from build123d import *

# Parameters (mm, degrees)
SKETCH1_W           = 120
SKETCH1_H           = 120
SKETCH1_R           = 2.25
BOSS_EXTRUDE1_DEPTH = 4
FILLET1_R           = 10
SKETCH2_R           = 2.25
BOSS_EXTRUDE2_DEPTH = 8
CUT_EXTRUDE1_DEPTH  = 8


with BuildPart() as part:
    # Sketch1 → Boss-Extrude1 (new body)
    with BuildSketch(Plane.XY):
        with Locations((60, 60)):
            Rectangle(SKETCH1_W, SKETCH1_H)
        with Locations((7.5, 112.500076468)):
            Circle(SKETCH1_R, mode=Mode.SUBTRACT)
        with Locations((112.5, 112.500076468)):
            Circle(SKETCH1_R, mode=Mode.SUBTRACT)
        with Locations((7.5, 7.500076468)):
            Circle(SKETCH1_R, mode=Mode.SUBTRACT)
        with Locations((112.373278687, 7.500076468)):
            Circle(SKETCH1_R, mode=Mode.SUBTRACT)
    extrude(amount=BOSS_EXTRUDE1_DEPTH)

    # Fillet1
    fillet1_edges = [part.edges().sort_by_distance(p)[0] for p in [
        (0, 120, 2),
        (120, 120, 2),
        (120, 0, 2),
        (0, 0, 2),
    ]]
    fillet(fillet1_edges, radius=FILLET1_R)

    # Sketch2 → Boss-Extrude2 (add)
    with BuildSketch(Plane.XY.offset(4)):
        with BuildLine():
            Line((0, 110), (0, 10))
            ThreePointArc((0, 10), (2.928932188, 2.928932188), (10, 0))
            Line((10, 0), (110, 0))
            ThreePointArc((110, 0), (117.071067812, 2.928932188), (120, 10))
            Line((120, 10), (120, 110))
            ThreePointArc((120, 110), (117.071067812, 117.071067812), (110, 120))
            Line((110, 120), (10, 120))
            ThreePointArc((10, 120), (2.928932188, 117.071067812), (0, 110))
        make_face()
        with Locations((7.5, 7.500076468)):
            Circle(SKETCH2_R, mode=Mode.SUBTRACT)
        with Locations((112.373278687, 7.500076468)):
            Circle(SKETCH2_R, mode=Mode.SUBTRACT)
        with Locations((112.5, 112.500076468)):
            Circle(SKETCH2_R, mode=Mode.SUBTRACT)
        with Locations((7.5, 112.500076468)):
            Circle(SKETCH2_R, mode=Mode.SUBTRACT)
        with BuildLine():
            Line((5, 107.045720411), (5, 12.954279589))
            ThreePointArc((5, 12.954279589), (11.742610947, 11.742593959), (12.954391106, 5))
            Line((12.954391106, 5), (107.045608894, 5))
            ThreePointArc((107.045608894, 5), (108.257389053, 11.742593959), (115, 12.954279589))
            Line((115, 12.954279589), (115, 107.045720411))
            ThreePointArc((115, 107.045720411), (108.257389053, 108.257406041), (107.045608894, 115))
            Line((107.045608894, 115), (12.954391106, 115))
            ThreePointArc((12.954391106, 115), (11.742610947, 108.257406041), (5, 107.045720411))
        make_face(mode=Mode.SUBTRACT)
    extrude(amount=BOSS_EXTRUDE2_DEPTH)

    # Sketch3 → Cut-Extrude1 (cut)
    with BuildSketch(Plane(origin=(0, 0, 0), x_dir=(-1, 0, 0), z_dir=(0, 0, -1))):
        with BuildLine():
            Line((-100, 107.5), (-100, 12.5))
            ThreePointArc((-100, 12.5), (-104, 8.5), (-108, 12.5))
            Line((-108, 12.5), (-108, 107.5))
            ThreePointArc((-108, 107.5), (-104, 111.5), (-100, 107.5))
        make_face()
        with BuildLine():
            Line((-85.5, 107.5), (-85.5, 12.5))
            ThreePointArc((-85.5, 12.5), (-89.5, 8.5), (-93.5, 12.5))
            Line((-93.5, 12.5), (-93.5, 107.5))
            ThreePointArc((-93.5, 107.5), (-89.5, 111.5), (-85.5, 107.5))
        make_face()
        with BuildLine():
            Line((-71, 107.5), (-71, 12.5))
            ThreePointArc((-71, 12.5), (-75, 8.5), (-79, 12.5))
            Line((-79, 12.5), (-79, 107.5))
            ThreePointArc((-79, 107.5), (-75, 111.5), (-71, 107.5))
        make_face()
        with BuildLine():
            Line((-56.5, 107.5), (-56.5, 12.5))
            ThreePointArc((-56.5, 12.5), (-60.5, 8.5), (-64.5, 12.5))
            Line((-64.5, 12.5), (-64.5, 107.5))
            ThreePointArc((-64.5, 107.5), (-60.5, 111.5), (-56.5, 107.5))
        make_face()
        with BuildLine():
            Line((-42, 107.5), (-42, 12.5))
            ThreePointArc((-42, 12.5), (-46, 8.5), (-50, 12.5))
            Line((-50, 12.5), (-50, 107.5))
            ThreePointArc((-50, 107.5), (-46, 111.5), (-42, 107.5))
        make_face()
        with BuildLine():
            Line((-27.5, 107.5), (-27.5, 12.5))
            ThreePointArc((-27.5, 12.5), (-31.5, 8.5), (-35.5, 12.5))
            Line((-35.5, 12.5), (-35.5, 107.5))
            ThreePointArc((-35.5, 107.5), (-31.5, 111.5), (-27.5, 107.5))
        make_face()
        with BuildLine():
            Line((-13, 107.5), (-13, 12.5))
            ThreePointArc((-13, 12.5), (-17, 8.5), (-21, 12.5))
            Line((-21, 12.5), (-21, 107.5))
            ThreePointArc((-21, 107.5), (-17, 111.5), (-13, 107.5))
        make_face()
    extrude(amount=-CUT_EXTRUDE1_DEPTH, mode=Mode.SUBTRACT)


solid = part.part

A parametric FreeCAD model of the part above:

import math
import FreeCAD as App
import Part
import Sketcher

V = App.Vector
Q = App.Units.Quantity


def edges_at(feature, points):
    """Names of the edges that pass closest to the given points."""
    edges = feature.Shape.Edges
    near = lambda p: min(range(len(edges)), key=lambda i: edges[i].distToShape(Part.Vertex(*p))[0])
    return sorted({f"Edge{near(p) + 1}" for p in points})


def add_polygon(sketch, points):
    """Adds a closed chain of lines whose ends are joined by coincident constraints."""
    first, n = sketch.GeometryCount, len(points)
    for a, b in zip(points, points[1:] + points[:1]):
        sketch.addGeometry(Part.LineSegment(App.Vector(*a, 0), App.Vector(*b, 0)), False)
    for i in range(n):
        sketch.addConstraint(Sketcher.Constraint("Coincident", first + i, 2, first + (i + 1) % n, 1))

doc = App.newDocument("Part")
body = doc.addObject("PartDesign::Body", "Body")

# Sketch on XY plane
sketch1 = doc.addObject("Sketcher::SketchObject", "Sketch")
body.addObject(sketch1)
sketch1.AttachmentSupport = (doc.XY_Plane, [""])
sketch1.MapMode = "FlatFace"
add_polygon(sketch1, [(0, 120), (0, 0), (120, 0), (120, 120)])  # lines 0-3
sketch1.addGeometry(Part.Circle(V(7.5, 7.5, 0), V(0, 0, 1), 2.2), False)  # 4
sketch1.addGeometry(Part.Circle(V(112.4, 7.5, 0), V(0, 0, 1), 2.2), False)  # 5
sketch1.addGeometry(Part.Circle(V(7.5, 112.5, 0), V(0, 0, 1), 2.2), False)  # 6
sketch1.addGeometry(Part.Circle(V(112.5, 112.5, 0), V(0, 0, 1), 2.2), False)  # 7
sketch1.addConstraint(Sketcher.Constraint("Vertical", 0))
sketch1.addConstraint(Sketcher.Constraint("Horizontal", 1))
sketch1.addConstraint(Sketcher.Constraint("Vertical", 2))
sketch1.addConstraint(Sketcher.Constraint("Horizontal", 3))
sketch1.addConstraint(Sketcher.Constraint("Coincident", 0, 2, -1, 1))
sketch1.addConstraint(Sketcher.Constraint("Equal", 4, 5))
sketch1.addConstraint(Sketcher.Constraint("Equal", 5, 6))
sketch1.addConstraint(Sketcher.Constraint("Equal", 6, 7))
sketch1.addConstraint(Sketcher.Constraint("Horizontal", 4, 3, 5, 3))
sketch1.addConstraint(Sketcher.Constraint("Horizontal", 6, 3, 7, 3))
sketch1.addConstraint(Sketcher.Constraint("Vertical", 4, 3, 6, 3))
sketch1.addConstraint(Sketcher.Constraint("Equal", 3, 0))
sketch1.addConstraint(Sketcher.Constraint("Diameter", 4, Q("4.5 mm")))
sketch1.addConstraint(Sketcher.Constraint("DistanceX", 1, 1, 1, 2, Q("120 mm")))
sketch1.addConstraint(Sketcher.Constraint("DistanceY", 4, 3, 6, 3, Q("105 mm")))
sketch1.addConstraint(Sketcher.Constraint("DistanceX", 6, 3, 7, 3, Q("105 mm")))
sketch1.addConstraint(Sketcher.Constraint("DistanceX", -1, 1, 4, 3, Q("7.5 mm")))
sketch1.addConstraint(Sketcher.Constraint("DistanceX", -1, 1, 5, 3, Q("112.373279 mm")))
sketch1.addConstraint(Sketcher.Constraint("DistanceY", -1, 1, 4, 3, Q("7.500076 mm")))
pad1 = doc.addObject("PartDesign::Pad", "Pad")
body.addObject(pad1)
pad1.Profile = sketch1
pad1.Length = 4
doc.recompute()

fillet = doc.addObject("PartDesign::Fillet", "Fillet")
body.addObject(fillet)
fillet.Base = (pad1, edges_at(pad1, [
    (0, 120, 2),
    (120, 120, 2),
    (120, 0, 2),
    (0, 0, 2),
]))
fillet.Radius = 10

# Sketch on XY plane
sketch2 = doc.addObject("Sketcher::SketchObject", "Sketch001")
body.addObject(sketch2)
sketch2.AttachmentSupport = (doc.XY_Plane, [""])
sketch2.MapMode = "FlatFace"
sketch2.AttachmentOffset = App.Placement(V(0, 0, 4), App.Rotation())
sketch2.addGeometry(Part.LineSegment(V(0, 110, 0), V(0, 10, 0)), False)
sketch2.addGeometry(Part.ArcOfCircle(Part.Circle(V(10, 10, 0), V(0, 0, 1), 10), math.radians(180), math.radians(270)), False)
sketch2.addGeometry(Part.LineSegment(V(10, 0, 0), V(110, 0, 0)), False)
sketch2.addGeometry(Part.ArcOfCircle(Part.Circle(V(110, 10, 0), V(0, 0, 1), 10), math.radians(-90), math.radians(0)), False)
sketch2.addGeometry(Part.LineSegment(V(120, 10, 0), V(120, 110, 0)), False)
sketch2.addGeometry(Part.ArcOfCircle(Part.Circle(V(110, 110, 0), V(0, 0, 1), 10), math.radians(0), math.radians(90)), False)
sketch2.addGeometry(Part.LineSegment(V(110, 120, 0), V(10, 120, 0)), False)
sketch2.addGeometry(Part.ArcOfCircle(Part.Circle(V(10, 110, 0), V(0, 0, 1), 10), math.radians(90), math.radians(180)), False)
sketch2.addGeometry(Part.Circle(V(7.5, 7.5, 0), V(0, 0, 1), 2.2), False)
sketch2.addGeometry(Part.Circle(V(112.4, 7.5, 0), V(0, 0, 1), 2.2), False)
sketch2.addGeometry(Part.Circle(V(7.5, 112.5, 0), V(0, 0, 1), 2.2), False)
sketch2.addGeometry(Part.LineSegment(V(5, 13, 0), V(5, 107, 0)), False)
sketch2.addGeometry(Part.ArcOfCircle(Part.Circle(V(7.5, 112.5, 0), V(0, 0, 1), 6), math.radians(-115), math.radians(25)), False)
sketch2.addGeometry(Part.LineSegment(V(13, 115, 0), V(107, 115, 0)), False)
sketch2.addGeometry(Part.ArcOfCircle(Part.Circle(V(112.5, 112.5, 0), V(0, 0, 1), 6), math.radians(155), math.radians(295)), False)
sketch2.addGeometry(Part.LineSegment(V(115, 107, 0), V(115, 13, 0)), False)
sketch2.addGeometry(Part.ArcOfCircle(Part.Circle(V(112.5, 7.5, 0), V(0, 0, 1), 6), math.radians(65), math.radians(205)), False)
sketch2.addGeometry(Part.LineSegment(V(107, 5, 0), V(13, 5, 0)), False)
sketch2.addGeometry(Part.ArcOfCircle(Part.Circle(V(7.5, 7.5, 0), V(0, 0, 1), 6), math.radians(-25), math.radians(115)), False)
sketch2.addGeometry(Part.Circle(V(112.5, 112.5, 0), V(0, 0, 1), 2.2), False)
sketch2.addConstraint(Sketcher.Constraint("Tangent", 0, 2, 1, 1))
sketch2.addConstraint(Sketcher.Constraint("Tangent", 1, 2, 2, 1))
sketch2.addConstraint(Sketcher.Constraint("Tangent", 2, 2, 3, 1))
sketch2.addConstraint(Sketcher.Constraint("Tangent", 3, 2, 4, 1))
sketch2.addConstraint(Sketcher.Constraint("Tangent", 4, 2, 5, 1))
sketch2.addConstraint(Sketcher.Constraint("Tangent", 5, 2, 6, 1))
sketch2.addConstraint(Sketcher.Constraint("Tangent", 6, 2, 7, 1))
sketch2.addConstraint(Sketcher.Constraint("Tangent", 7, 2, 0, 1))
sketch2.addConstraint(Sketcher.Constraint("Coincident", 11, 2, 12, 1))
sketch2.addConstraint(Sketcher.Constraint("Coincident", 12, 2, 13, 1))
sketch2.addConstraint(Sketcher.Constraint("Coincident", 13, 2, 14, 1))
sketch2.addConstraint(Sketcher.Constraint("Coincident", 14, 2, 15, 1))
sketch2.addConstraint(Sketcher.Constraint("Coincident", 15, 2, 16, 1))
sketch2.addConstraint(Sketcher.Constraint("Coincident", 16, 2, 17, 1))
sketch2.addConstraint(Sketcher.Constraint("Coincident", 17, 2, 18, 1))
sketch2.addConstraint(Sketcher.Constraint("Coincident", 18, 2, 11, 1))
sketch2.addConstraint(Sketcher.Constraint("Vertical", 0))
sketch2.addConstraint(Sketcher.Constraint("Horizontal", 2))
sketch2.addConstraint(Sketcher.Constraint("Vertical", 4))
sketch2.addConstraint(Sketcher.Constraint("Horizontal", 6))
sketch2.addConstraint(Sketcher.Constraint("Vertical", 11))
sketch2.addConstraint(Sketcher.Constraint("Horizontal", 13))
sketch2.addConstraint(Sketcher.Constraint("Vertical", 15))
sketch2.addConstraint(Sketcher.Constraint("Horizontal", 17))
sketch2.addConstraint(Sketcher.Constraint("Coincident", 12, 3, 10, 3))
sketch2.addConstraint(Sketcher.Constraint("Coincident", 19, 3, 14, 3))
sketch2.addConstraint(Sketcher.Constraint("Equal", 1, 3))
sketch2.addConstraint(Sketcher.Constraint("Equal", 3, 5))
sketch2.addConstraint(Sketcher.Constraint("Equal", 5, 7))
sketch2.addConstraint(Sketcher.Constraint("Equal", 8, 9))
sketch2.addConstraint(Sketcher.Constraint("Equal", 9, 10))
sketch2.addConstraint(Sketcher.Constraint("Equal", 12, 14))
sketch2.addConstraint(Sketcher.Constraint("Equal", 14, 16))
sketch2.addConstraint(Sketcher.Constraint("Equal", 16, 18))
sketch2.addConstraint(Sketcher.Constraint("Equal", 10, 19))
sketch2.addConstraint(Sketcher.Constraint("PointOnObject", 0, 2, -2))
sketch2.addConstraint(Sketcher.Constraint("PointOnObject", 1, 2, -1))
sketch2.addConstraint(Sketcher.Constraint("Horizontal", 8, 3, 9, 3))
sketch2.addConstraint(Sketcher.Constraint("Horizontal", 12, 3, 14, 3))
sketch2.addConstraint(Sketcher.Constraint("Horizontal", 16, 3, 18, 3))
sketch2.addConstraint(Sketcher.Constraint("Horizontal", 11, 2, 14, 2))
sketch2.addConstraint(Sketcher.Constraint("Horizontal", 15, 2, 18, 2))
sketch2.addConstraint(Sketcher.Constraint("Vertical", 8, 3, 10, 3))
sketch2.addConstraint(Sketcher.Constraint("Vertical", 14, 3, 16, 3))
sketch2.addConstraint(Sketcher.Constraint("Vertical", 13, 2, 16, 2))
sketch2.addConstraint(Sketcher.Constraint("Equal", 6, 0))
sketch2.addConstraint(Sketcher.Constraint("Radius", 1, Q("10 mm")))
sketch2.addConstraint(Sketcher.Constraint("Radius", 12, Q("6 mm")))
sketch2.addConstraint(Sketcher.Constraint("Diameter", 8, Q("4.5 mm")))
sketch2.addConstraint(Sketcher.Constraint("DistanceX", 2, 1, 2, 2, Q("100 mm")))
sketch2.addConstraint(Sketcher.Constraint("DistanceX", -1, 1, 11, 2, Q("5 mm")))
sketch2.addConstraint(Sketcher.Constraint("DistanceY", -1, 1, 12, 2, Q("115 mm")))
sketch2.addConstraint(Sketcher.Constraint("DistanceX", -1, 1, 14, 2, Q("115 mm")))
sketch2.addConstraint(Sketcher.Constraint("DistanceY", -1, 1, 16, 2, Q("5 mm")))
sketch2.addConstraint(Sketcher.Constraint("DistanceY", 8, 3, 10, 3, Q("105 mm")))
sketch2.addConstraint(Sketcher.Constraint("DistanceX", 10, 3, 14, 3, Q("105 mm")))
sketch2.addConstraint(Sketcher.Constraint("DistanceY", 11, 1, 11, 2, Q("94.091441 mm")))
sketch2.addConstraint(Sketcher.Constraint("DistanceX", -1, 1, 9, 3, Q("112.373279 mm")))
pad2 = doc.addObject("PartDesign::Pad", "Pad001")
body.addObject(pad2)
pad2.Profile = sketch2
pad2.Length = 8

# Sketch on XY plane
sketch3 = doc.addObject("Sketcher::SketchObject", "Sketch002")
body.addObject(sketch3)
sketch3.AttachmentSupport = (doc.XY_Plane, [""])
sketch3.MapMode = "FlatFace"
sketch3.addGeometry(Part.LineSegment(V(100, 12.5, 0), V(100, 107.5, 0)), False)
sketch3.addGeometry(Part.ArcOfCircle(Part.Circle(V(104, 107.5, 0), V(0, 0, 1), 4), math.radians(0), math.radians(180)), False)
sketch3.addGeometry(Part.LineSegment(V(108, 107.5, 0), V(108, 12.5, 0)), False)
sketch3.addGeometry(Part.ArcOfCircle(Part.Circle(V(104, 12.5, 0), V(0, 0, 1), 4), math.radians(180), math.radians(360)), False)
sketch3.addGeometry(Part.LineSegment(V(85.5, 12.5, 0), V(85.5, 107.5, 0)), False)
sketch3.addGeometry(Part.ArcOfCircle(Part.Circle(V(89.5, 107.5, 0), V(0, 0, 1), 4), math.radians(0), math.radians(180)), False)
sketch3.addGeometry(Part.LineSegment(V(93.5, 107.5, 0), V(93.5, 12.5, 0)), False)
sketch3.addGeometry(Part.ArcOfCircle(Part.Circle(V(89.5, 12.5, 0), V(0, 0, 1), 4), math.radians(180), math.radians(360)), False)
sketch3.addGeometry(Part.LineSegment(V(71, 12.5, 0), V(71, 107.5, 0)), False)
sketch3.addGeometry(Part.ArcOfCircle(Part.Circle(V(75, 107.5, 0), V(0, 0, 1), 4), math.radians(0), math.radians(180)), False)
sketch3.addGeometry(Part.LineSegment(V(79, 107.5, 0), V(79, 12.5, 0)), False)
sketch3.addGeometry(Part.ArcOfCircle(Part.Circle(V(75, 12.5, 0), V(0, 0, 1), 4), math.radians(180), math.radians(360)), False)
sketch3.addGeometry(Part.LineSegment(V(56.5, 12.5, 0), V(56.5, 107.5, 0)), False)
sketch3.addGeometry(Part.ArcOfCircle(Part.Circle(V(60.5, 107.5, 0), V(0, 0, 1), 4), math.radians(0), math.radians(180)), False)
sketch3.addGeometry(Part.LineSegment(V(64.5, 107.5, 0), V(64.5, 12.5, 0)), False)
sketch3.addGeometry(Part.ArcOfCircle(Part.Circle(V(60.5, 12.5, 0), V(0, 0, 1), 4), math.radians(180), math.radians(360)), False)
sketch3.addGeometry(Part.LineSegment(V(42, 12.5, 0), V(42, 107.5, 0)), False)
sketch3.addGeometry(Part.ArcOfCircle(Part.Circle(V(46, 107.5, 0), V(0, 0, 1), 4), math.radians(0), math.radians(180)), False)
sketch3.addGeometry(Part.LineSegment(V(50, 107.5, 0), V(50, 12.5, 0)), False)
sketch3.addGeometry(Part.ArcOfCircle(Part.Circle(V(46, 12.5, 0), V(0, 0, 1), 4), math.radians(180), math.radians(360)), False)
sketch3.addGeometry(Part.LineSegment(V(27.5, 12.5, 0), V(27.5, 107.5, 0)), False)
sketch3.addGeometry(Part.ArcOfCircle(Part.Circle(V(31.5, 107.5, 0), V(0, 0, 1), 4), math.radians(0), math.radians(180)), False)
sketch3.addGeometry(Part.LineSegment(V(35.5, 107.5, 0), V(35.5, 12.5, 0)), False)
sketch3.addGeometry(Part.ArcOfCircle(Part.Circle(V(31.5, 12.5, 0), V(0, 0, 1), 4), math.radians(180), math.radians(360)), False)
sketch3.addGeometry(Part.LineSegment(V(13, 12.5, 0), V(13, 107.5, 0)), False)
sketch3.addGeometry(Part.ArcOfCircle(Part.Circle(V(17, 107.5, 0), V(0, 0, 1), 4), math.radians(0), math.radians(180)), False)
sketch3.addGeometry(Part.LineSegment(V(21, 107.5, 0), V(21, 12.5, 0)), False)
sketch3.addGeometry(Part.ArcOfCircle(Part.Circle(V(17, 12.5, 0), V(0, 0, 1), 4), math.radians(180), math.radians(360)), False)
sketch3.addConstraint(Sketcher.Constraint("Tangent", 0, 2, 1, 2))
sketch3.addConstraint(Sketcher.Constraint("Tangent", 1, 1, 2, 1))
sketch3.addConstraint(Sketcher.Constraint("Tangent", 2, 2, 3, 2))
sketch3.addConstraint(Sketcher.Constraint("Tangent", 3, 1, 0, 1))
sketch3.addConstraint(Sketcher.Constraint("Tangent", 4, 2, 5, 2))
sketch3.addConstraint(Sketcher.Constraint("Tangent", 5, 1, 6, 1))
sketch3.addConstraint(Sketcher.Constraint("Tangent", 6, 2, 7, 2))
sketch3.addConstraint(Sketcher.Constraint("Tangent", 7, 1, 4, 1))
sketch3.addConstraint(Sketcher.Constraint("Tangent", 8, 2, 9, 2))
sketch3.addConstraint(Sketcher.Constraint("Tangent", 9, 1, 10, 1))
sketch3.addConstraint(Sketcher.Constraint("Tangent", 10, 2, 11, 2))
sketch3.addConstraint(Sketcher.Constraint("Tangent", 11, 1, 8, 1))
sketch3.addConstraint(Sketcher.Constraint("Tangent", 12, 2, 13, 2))
sketch3.addConstraint(Sketcher.Constraint("Tangent", 13, 1, 14, 1))
sketch3.addConstraint(Sketcher.Constraint("Tangent", 14, 2, 15, 2))
sketch3.addConstraint(Sketcher.Constraint("Tangent", 15, 1, 12, 1))
sketch3.addConstraint(Sketcher.Constraint("Tangent", 16, 2, 17, 2))
sketch3.addConstraint(Sketcher.Constraint("Tangent", 17, 1, 18, 1))
sketch3.addConstraint(Sketcher.Constraint("Tangent", 18, 2, 19, 2))
sketch3.addConstraint(Sketcher.Constraint("Tangent", 19, 1, 16, 1))
sketch3.addConstraint(Sketcher.Constraint("Tangent", 20, 2, 21, 2))
sketch3.addConstraint(Sketcher.Constraint("Tangent", 21, 1, 22, 1))
sketch3.addConstraint(Sketcher.Constraint("Tangent", 22, 2, 23, 2))
sketch3.addConstraint(Sketcher.Constraint("Tangent", 23, 1, 20, 1))
sketch3.addConstraint(Sketcher.Constraint("Tangent", 24, 2, 25, 2))
sketch3.addConstraint(Sketcher.Constraint("Tangent", 25, 1, 26, 1))
sketch3.addConstraint(Sketcher.Constraint("Tangent", 26, 2, 27, 2))
sketch3.addConstraint(Sketcher.Constraint("Tangent", 27, 1, 24, 1))
sketch3.addConstraint(Sketcher.Constraint("Vertical", 0))
sketch3.addConstraint(Sketcher.Constraint("Vertical", 2))
sketch3.addConstraint(Sketcher.Constraint("Vertical", 4))
sketch3.addConstraint(Sketcher.Constraint("Vertical", 6))
sketch3.addConstraint(Sketcher.Constraint("Vertical", 8))
sketch3.addConstraint(Sketcher.Constraint("Vertical", 10))
sketch3.addConstraint(Sketcher.Constraint("Vertical", 12))
sketch3.addConstraint(Sketcher.Constraint("Vertical", 14))
sketch3.addConstraint(Sketcher.Constraint("Vertical", 16))
sketch3.addConstraint(Sketcher.Constraint("Vertical", 18))
sketch3.addConstraint(Sketcher.Constraint("Vertical", 20))
sketch3.addConstraint(Sketcher.Constraint("Vertical", 22))
sketch3.addConstraint(Sketcher.Constraint("Vertical", 24))
sketch3.addConstraint(Sketcher.Constraint("Vertical", 26))
sketch3.addConstraint(Sketcher.Constraint("Equal", 3, 5))
sketch3.addConstraint(Sketcher.Constraint("Equal", 7, 9))
sketch3.addConstraint(Sketcher.Constraint("Equal", 11, 13))
sketch3.addConstraint(Sketcher.Constraint("Equal", 15, 17))
sketch3.addConstraint(Sketcher.Constraint("Equal", 19, 21))
sketch3.addConstraint(Sketcher.Constraint("Equal", 23, 25))
sketch3.addConstraint(Sketcher.Constraint("Horizontal", 1, 3, 5, 3))
sketch3.addConstraint(Sketcher.Constraint("Horizontal", 3, 3, 7, 3))
sketch3.addConstraint(Sketcher.Constraint("Horizontal", 5, 3, 9, 3))
sketch3.addConstraint(Sketcher.Constraint("Horizontal", 7, 3, 11, 3))
sketch3.addConstraint(Sketcher.Constraint("Horizontal", 9, 3, 13, 3))
sketch3.addConstraint(Sketcher.Constraint("Horizontal", 11, 3, 15, 3))
sketch3.addConstraint(Sketcher.Constraint("Horizontal", 13, 3, 17, 3))
sketch3.addConstraint(Sketcher.Constraint("Horizontal", 15, 3, 19, 3))
sketch3.addConstraint(Sketcher.Constraint("Horizontal", 17, 3, 21, 3))
sketch3.addConstraint(Sketcher.Constraint("Horizontal", 19, 3, 23, 3))
sketch3.addConstraint(Sketcher.Constraint("Horizontal", 21, 3, 25, 3))
sketch3.addConstraint(Sketcher.Constraint("Horizontal", 23, 3, 27, 3))
sketch3.addConstraint(Sketcher.Constraint("Radius", 1, Q("4 mm")))
sketch3.addConstraint(Sketcher.Constraint("DistanceY", 0, 1, 0, 2, Q("95 mm")))
sketch3.addConstraint(Sketcher.Constraint("DistanceX", -1, 1, 1, 3, Q("104 mm")))
sketch3.addConstraint(Sketcher.Constraint("DistanceX", -1, 1, 9, 3, Q("75 mm")))
sketch3.addConstraint(Sketcher.Constraint("DistanceX", -1, 1, 17, 3, Q("46 mm")))
sketch3.addConstraint(Sketcher.Constraint("DistanceX", -1, 1, 25, 3, Q("17 mm")))
sketch3.addConstraint(Sketcher.Constraint("DistanceX", 13, 3, 5, 3, Q("29 mm")))
sketch3.addConstraint(Sketcher.Constraint("DistanceX", 21, 3, 13, 3, Q("29 mm")))
sketch3.addConstraint(Sketcher.Constraint("DistanceY", -1, 1, 1, 3, Q("107.5 mm")))
sketch3.addConstraint(Sketcher.Constraint("DistanceX", -1, 1, 5, 3, Q("89.5 mm")))
pocket1 = doc.addObject("PartDesign::Pocket", "Pocket")
body.addObject(pocket1)
pocket1.Profile = sketch3
pocket1.Length = 8
pocket1.Reversed = True

doc.recompute()
